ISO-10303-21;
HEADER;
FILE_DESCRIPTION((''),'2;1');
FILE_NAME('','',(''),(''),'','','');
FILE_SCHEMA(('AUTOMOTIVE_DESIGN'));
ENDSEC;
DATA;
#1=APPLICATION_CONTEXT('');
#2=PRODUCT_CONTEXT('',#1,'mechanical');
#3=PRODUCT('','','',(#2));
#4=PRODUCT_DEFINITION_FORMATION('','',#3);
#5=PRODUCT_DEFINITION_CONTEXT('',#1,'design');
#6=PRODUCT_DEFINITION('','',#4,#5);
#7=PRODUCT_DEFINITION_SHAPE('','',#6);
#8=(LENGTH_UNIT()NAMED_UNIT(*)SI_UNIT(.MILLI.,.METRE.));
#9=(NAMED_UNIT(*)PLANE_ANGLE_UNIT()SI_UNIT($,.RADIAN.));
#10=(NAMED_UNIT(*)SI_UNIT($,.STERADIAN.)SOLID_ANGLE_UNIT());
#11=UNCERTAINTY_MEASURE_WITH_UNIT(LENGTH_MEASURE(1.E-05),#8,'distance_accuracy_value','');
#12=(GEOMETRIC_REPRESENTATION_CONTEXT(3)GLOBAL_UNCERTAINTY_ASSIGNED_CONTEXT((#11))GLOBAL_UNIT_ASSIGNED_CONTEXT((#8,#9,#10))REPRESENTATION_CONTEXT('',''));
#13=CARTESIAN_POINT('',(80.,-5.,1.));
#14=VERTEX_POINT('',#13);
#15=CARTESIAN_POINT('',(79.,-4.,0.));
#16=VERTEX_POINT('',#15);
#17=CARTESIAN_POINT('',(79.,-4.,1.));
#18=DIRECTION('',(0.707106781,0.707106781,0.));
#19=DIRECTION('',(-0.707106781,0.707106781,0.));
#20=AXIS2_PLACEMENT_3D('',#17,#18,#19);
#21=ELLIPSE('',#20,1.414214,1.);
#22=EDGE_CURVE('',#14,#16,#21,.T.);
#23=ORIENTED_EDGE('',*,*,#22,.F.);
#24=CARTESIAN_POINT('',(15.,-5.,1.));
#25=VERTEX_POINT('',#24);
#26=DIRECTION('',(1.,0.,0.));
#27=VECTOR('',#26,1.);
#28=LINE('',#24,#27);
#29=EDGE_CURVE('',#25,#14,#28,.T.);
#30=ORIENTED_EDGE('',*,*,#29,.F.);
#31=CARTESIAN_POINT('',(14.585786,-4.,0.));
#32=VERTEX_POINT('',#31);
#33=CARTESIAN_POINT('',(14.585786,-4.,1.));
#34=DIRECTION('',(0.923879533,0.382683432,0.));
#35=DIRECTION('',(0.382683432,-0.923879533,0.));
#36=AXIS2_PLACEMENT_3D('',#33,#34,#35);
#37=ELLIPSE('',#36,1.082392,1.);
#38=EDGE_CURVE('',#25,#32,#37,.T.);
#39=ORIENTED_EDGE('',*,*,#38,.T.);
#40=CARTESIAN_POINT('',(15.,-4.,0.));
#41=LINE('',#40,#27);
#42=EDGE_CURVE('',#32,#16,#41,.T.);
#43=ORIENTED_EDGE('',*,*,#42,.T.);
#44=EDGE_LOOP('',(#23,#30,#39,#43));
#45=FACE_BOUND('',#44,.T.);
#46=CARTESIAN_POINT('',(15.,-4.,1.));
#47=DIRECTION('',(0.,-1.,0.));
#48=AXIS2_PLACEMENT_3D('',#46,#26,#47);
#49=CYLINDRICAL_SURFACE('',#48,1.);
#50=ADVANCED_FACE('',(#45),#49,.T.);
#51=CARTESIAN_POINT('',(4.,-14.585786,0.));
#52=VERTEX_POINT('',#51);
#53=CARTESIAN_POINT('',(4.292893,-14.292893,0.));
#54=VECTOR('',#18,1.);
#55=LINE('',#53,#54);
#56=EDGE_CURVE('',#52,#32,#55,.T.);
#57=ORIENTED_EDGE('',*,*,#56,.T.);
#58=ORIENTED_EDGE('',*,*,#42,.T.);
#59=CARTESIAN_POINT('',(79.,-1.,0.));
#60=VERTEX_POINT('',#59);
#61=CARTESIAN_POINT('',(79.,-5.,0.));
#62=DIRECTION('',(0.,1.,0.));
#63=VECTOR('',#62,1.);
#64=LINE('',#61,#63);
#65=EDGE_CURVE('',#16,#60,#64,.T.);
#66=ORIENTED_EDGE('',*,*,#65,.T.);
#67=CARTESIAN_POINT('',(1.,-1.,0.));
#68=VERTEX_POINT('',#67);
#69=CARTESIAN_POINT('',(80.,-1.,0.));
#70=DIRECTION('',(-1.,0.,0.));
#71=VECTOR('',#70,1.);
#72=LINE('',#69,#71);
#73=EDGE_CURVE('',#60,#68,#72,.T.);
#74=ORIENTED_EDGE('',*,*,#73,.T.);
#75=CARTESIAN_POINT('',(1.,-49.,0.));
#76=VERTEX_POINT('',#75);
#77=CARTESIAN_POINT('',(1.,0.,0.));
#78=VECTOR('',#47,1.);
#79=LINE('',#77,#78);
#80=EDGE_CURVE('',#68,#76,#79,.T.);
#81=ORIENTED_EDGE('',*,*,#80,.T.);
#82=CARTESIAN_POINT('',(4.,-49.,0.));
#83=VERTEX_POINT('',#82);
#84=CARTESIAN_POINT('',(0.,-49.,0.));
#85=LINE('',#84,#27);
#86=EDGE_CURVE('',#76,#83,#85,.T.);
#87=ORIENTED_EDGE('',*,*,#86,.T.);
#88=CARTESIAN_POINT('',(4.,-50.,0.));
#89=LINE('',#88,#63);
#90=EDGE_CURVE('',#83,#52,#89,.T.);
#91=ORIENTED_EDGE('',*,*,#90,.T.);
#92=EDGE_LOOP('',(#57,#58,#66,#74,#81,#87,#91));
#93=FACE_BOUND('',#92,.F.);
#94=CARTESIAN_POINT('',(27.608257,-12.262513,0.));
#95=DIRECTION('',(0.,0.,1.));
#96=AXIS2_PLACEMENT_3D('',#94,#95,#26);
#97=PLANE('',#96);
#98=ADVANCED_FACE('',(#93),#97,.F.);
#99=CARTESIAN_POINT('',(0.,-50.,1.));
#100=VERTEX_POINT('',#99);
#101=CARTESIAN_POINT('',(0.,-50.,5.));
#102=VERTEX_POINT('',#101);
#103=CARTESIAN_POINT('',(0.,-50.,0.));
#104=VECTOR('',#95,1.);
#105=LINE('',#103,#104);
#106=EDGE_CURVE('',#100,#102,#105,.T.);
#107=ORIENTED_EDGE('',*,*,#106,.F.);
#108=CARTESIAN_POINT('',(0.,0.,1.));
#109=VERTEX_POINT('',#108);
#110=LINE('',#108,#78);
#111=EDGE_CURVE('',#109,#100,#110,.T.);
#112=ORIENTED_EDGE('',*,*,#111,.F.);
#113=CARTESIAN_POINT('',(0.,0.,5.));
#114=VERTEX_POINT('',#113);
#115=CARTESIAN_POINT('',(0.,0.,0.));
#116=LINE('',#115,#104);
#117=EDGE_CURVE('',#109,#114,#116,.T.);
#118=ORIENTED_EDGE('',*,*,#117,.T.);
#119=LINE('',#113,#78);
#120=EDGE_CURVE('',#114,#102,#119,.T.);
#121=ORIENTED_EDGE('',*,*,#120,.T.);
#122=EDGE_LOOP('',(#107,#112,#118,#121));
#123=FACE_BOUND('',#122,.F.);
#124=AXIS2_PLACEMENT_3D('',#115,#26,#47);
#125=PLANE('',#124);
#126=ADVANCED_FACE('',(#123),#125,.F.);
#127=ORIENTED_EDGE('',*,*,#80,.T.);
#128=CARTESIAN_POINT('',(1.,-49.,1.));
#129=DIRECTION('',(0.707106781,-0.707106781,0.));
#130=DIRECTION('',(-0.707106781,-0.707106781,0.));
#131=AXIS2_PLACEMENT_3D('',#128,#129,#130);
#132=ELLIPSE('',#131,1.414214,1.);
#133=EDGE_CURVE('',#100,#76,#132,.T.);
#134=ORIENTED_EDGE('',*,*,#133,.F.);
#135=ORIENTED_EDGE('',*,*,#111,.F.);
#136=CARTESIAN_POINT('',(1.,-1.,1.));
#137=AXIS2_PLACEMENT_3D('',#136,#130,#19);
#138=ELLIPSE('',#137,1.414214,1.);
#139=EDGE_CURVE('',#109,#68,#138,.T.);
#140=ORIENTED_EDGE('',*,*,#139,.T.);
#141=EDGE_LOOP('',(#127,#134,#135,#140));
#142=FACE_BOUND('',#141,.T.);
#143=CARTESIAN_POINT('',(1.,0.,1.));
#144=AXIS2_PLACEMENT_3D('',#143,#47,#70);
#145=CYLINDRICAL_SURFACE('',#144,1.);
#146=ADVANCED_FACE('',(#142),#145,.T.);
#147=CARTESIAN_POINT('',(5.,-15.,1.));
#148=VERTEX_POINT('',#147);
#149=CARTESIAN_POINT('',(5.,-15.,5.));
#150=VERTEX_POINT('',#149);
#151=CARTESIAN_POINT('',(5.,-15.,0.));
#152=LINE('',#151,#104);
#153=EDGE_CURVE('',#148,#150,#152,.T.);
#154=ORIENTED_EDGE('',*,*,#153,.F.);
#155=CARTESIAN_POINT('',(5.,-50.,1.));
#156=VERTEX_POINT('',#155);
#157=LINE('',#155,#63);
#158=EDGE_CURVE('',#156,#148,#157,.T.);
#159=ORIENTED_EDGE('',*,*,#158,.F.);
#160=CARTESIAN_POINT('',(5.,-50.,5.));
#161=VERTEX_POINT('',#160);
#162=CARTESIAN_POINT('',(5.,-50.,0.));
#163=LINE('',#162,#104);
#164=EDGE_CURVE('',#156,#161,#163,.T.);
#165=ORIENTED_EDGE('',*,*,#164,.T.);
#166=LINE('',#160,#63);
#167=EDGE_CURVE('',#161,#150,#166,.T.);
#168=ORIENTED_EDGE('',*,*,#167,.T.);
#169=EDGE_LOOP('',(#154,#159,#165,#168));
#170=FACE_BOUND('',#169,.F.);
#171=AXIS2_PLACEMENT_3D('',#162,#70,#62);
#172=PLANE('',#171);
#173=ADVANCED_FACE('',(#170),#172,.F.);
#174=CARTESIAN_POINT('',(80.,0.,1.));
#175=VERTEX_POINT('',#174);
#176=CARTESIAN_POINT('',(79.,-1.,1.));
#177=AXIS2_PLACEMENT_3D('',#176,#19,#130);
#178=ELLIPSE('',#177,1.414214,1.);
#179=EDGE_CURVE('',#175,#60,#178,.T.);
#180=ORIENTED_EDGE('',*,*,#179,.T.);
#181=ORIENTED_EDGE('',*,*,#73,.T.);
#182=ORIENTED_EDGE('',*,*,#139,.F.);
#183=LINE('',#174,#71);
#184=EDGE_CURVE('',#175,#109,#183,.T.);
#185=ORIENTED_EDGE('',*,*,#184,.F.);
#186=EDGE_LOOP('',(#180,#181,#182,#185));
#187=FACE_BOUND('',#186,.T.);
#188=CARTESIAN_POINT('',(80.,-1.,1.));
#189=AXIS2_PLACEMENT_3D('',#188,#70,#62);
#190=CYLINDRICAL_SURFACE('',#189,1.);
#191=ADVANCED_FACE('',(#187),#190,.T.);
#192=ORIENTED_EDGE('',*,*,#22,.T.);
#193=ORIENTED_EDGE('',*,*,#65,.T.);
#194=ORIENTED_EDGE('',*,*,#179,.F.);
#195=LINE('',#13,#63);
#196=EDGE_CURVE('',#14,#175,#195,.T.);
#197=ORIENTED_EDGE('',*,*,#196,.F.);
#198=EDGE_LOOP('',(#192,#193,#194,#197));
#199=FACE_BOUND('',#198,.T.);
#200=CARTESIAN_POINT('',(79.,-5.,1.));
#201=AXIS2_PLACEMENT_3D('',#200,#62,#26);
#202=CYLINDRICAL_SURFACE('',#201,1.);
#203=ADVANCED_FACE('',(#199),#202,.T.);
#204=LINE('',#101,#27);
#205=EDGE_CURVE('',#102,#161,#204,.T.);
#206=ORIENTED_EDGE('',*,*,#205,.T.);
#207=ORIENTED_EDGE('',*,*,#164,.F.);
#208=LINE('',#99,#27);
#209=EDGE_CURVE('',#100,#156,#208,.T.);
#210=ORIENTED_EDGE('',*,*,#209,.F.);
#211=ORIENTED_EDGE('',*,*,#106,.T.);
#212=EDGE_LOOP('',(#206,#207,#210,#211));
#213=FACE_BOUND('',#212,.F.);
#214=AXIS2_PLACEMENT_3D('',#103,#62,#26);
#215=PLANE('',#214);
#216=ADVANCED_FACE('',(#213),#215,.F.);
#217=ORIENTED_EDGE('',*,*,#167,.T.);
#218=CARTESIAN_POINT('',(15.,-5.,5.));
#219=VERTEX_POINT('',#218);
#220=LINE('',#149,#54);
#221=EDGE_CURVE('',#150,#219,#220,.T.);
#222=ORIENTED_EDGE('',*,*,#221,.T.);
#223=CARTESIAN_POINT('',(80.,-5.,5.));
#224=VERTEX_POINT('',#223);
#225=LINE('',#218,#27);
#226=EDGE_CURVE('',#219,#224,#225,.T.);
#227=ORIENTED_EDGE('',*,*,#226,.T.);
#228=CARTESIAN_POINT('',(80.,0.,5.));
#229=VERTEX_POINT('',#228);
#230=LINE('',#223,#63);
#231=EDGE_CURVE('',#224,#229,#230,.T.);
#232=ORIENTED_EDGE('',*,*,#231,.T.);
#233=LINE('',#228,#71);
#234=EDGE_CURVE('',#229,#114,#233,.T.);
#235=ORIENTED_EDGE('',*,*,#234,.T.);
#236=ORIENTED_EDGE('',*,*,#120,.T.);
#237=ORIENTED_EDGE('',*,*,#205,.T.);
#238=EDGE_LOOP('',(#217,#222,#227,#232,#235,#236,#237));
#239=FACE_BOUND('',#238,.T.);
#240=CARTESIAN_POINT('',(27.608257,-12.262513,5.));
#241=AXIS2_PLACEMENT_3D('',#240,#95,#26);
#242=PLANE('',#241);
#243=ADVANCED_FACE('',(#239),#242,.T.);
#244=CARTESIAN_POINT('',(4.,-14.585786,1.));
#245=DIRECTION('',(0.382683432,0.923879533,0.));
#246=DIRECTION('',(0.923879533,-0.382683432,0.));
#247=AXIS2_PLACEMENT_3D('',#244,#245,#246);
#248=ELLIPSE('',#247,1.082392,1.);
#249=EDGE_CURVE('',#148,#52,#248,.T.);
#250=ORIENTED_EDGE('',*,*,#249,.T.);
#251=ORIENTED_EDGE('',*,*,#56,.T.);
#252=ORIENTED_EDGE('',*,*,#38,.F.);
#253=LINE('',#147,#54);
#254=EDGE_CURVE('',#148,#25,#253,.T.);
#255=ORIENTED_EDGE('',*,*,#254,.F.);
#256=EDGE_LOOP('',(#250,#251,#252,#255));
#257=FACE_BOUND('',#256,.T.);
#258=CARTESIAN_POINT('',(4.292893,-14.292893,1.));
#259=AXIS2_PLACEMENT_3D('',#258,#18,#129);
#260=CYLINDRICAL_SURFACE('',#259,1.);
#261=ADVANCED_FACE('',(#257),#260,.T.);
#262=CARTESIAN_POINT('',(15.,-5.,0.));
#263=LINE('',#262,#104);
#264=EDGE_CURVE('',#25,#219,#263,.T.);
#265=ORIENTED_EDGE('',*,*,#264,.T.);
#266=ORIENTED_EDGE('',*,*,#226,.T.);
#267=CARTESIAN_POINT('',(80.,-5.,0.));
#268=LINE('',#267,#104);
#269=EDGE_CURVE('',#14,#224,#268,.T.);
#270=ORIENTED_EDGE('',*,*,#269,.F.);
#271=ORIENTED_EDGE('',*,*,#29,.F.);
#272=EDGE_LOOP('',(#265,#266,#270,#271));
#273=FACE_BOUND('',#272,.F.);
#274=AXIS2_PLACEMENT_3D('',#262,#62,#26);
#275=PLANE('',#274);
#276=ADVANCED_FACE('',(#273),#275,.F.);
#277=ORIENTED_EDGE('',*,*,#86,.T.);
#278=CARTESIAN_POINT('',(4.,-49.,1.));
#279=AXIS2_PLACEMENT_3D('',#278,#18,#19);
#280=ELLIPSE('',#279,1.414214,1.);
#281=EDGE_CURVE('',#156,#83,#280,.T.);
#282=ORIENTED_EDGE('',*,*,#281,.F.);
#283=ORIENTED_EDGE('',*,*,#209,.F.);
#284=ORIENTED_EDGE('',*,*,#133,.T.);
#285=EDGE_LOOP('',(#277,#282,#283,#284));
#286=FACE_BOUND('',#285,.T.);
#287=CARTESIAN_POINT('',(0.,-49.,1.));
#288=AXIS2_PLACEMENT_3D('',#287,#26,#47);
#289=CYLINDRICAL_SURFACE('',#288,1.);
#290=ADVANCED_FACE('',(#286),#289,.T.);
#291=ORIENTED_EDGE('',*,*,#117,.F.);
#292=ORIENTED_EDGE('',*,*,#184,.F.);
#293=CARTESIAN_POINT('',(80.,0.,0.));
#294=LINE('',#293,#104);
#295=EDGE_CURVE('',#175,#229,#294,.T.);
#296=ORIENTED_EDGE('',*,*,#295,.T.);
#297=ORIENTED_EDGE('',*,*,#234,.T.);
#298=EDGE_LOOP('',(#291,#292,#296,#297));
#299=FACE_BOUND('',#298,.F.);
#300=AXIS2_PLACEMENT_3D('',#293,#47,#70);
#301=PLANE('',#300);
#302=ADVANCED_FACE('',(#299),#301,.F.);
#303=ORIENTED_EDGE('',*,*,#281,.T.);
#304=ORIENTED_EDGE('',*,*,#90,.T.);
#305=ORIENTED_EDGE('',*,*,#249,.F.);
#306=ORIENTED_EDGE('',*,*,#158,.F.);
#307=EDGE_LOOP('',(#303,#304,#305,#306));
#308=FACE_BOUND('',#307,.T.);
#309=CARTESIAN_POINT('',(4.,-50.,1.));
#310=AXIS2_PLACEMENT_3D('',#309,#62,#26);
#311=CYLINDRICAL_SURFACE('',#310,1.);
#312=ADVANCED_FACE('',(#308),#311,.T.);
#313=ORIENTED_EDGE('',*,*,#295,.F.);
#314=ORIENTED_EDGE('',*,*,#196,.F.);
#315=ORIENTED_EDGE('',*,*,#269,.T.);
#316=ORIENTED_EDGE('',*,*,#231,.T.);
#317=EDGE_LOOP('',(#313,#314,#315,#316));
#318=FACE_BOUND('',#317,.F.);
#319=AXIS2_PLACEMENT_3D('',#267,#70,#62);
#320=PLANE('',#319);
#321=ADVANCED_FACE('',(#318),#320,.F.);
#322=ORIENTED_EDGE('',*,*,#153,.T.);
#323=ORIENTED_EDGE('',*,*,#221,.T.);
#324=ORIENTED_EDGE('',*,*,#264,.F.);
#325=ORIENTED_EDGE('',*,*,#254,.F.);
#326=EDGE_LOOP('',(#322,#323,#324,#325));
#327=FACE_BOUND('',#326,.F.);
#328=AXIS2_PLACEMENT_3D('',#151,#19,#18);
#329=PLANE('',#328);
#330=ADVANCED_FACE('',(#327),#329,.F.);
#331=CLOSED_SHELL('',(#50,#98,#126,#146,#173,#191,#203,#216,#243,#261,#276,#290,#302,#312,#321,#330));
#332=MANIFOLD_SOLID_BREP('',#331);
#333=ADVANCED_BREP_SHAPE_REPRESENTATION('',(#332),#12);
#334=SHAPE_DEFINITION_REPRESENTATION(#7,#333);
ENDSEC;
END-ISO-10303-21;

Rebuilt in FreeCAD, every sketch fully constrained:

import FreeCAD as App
import Part
import Sketcher
Q = App.Units.Quantity


def edges_at(feature, points):
    """Names of the edges that pass closest to the given points."""
    edges = feature.Shape.Edges
    near = lambda p: min(range(len(edges)), key=lambda i: edges[i].distToShape(Part.Vertex(*p))[0])
    return sorted({f"Edge{near(p) + 1}" for p in points})


def add_polygon(sketch, points):
    """Adds a closed chain of lines whose ends are joined by coincident constraints."""
    first, n = sketch.GeometryCount, len(points)
    for a, b in zip(points, points[1:] + points[:1]):
        sketch.addGeometry(Part.LineSegment(App.Vector(*a, 0), App.Vector(*b, 0)), False)
    for i in range(n):
        sketch.addConstraint(Sketcher.Constraint("Coincident", first + i, 2, first + (i + 1) % n, 1))

doc = App.newDocument("Part")
body = doc.addObject("PartDesign::Body", "Body")

# Sketch on XY plane
sketch1 = body.newObject("Sketcher::SketchObject", "Sketch")
sketch1.AttachmentSupport = (doc.getObject("XY_Plane"), [""])
sketch1.MapMode = "FlatFace"
add_polygon(sketch1, [(80, 0), (0, 0), (0, -50), (5, -50), (5, -15), (15, -5), (80, -5)])  # lines 0-6
sketch1.addConstraint([
    Sketcher.Constraint("Horizontal", 0),
    Sketcher.Constraint("Vertical", 1),
    Sketcher.Constraint("Horizontal", 2),
    Sketcher.Constraint("Vertical", 3),
    Sketcher.Constraint("Horizontal", 5),
    Sketcher.Constraint("Vertical", 6),
    Sketcher.Constraint("Coincident", 0, 2, -1, 1),
    Sketcher.Constraint("Equal", 2, 6),
    Sketcher.Constraint("DistanceX", 0, 2, 0, 1, Q("80 mm")),
    Sketcher.Constraint("DistanceX", 2, 1, 2, 2, Q("5 mm")),
    Sketcher.Constraint("DistanceX", 5, 1, 5, 2, Q("65 mm")),
    Sketcher.Constraint("DistanceY", 1, 2, 1, 1, Q("50 mm")),
    Sketcher.Constraint("DistanceY", 3, 1, 3, 2, Q("35 mm")),
])
pad1 = body.newObject("PartDesign::Pad", "Pad")
pad1.Profile = sketch1
pad1.Length = 5
doc.recompute()

fillet = body.newObject("PartDesign::Fillet", "Fillet")
fillet.Base = (pad1, edges_at(pad1, [
    (40, 0, 0),
    (0, -25, 0),
    (80, -2.5, 0),
    (47.5, -5, 0),
    (10, -10, 0),
    (5, -32.5, 0),
    (2.5, -50, 0),
]))
fillet.Radius = 1

doc.recompute()
